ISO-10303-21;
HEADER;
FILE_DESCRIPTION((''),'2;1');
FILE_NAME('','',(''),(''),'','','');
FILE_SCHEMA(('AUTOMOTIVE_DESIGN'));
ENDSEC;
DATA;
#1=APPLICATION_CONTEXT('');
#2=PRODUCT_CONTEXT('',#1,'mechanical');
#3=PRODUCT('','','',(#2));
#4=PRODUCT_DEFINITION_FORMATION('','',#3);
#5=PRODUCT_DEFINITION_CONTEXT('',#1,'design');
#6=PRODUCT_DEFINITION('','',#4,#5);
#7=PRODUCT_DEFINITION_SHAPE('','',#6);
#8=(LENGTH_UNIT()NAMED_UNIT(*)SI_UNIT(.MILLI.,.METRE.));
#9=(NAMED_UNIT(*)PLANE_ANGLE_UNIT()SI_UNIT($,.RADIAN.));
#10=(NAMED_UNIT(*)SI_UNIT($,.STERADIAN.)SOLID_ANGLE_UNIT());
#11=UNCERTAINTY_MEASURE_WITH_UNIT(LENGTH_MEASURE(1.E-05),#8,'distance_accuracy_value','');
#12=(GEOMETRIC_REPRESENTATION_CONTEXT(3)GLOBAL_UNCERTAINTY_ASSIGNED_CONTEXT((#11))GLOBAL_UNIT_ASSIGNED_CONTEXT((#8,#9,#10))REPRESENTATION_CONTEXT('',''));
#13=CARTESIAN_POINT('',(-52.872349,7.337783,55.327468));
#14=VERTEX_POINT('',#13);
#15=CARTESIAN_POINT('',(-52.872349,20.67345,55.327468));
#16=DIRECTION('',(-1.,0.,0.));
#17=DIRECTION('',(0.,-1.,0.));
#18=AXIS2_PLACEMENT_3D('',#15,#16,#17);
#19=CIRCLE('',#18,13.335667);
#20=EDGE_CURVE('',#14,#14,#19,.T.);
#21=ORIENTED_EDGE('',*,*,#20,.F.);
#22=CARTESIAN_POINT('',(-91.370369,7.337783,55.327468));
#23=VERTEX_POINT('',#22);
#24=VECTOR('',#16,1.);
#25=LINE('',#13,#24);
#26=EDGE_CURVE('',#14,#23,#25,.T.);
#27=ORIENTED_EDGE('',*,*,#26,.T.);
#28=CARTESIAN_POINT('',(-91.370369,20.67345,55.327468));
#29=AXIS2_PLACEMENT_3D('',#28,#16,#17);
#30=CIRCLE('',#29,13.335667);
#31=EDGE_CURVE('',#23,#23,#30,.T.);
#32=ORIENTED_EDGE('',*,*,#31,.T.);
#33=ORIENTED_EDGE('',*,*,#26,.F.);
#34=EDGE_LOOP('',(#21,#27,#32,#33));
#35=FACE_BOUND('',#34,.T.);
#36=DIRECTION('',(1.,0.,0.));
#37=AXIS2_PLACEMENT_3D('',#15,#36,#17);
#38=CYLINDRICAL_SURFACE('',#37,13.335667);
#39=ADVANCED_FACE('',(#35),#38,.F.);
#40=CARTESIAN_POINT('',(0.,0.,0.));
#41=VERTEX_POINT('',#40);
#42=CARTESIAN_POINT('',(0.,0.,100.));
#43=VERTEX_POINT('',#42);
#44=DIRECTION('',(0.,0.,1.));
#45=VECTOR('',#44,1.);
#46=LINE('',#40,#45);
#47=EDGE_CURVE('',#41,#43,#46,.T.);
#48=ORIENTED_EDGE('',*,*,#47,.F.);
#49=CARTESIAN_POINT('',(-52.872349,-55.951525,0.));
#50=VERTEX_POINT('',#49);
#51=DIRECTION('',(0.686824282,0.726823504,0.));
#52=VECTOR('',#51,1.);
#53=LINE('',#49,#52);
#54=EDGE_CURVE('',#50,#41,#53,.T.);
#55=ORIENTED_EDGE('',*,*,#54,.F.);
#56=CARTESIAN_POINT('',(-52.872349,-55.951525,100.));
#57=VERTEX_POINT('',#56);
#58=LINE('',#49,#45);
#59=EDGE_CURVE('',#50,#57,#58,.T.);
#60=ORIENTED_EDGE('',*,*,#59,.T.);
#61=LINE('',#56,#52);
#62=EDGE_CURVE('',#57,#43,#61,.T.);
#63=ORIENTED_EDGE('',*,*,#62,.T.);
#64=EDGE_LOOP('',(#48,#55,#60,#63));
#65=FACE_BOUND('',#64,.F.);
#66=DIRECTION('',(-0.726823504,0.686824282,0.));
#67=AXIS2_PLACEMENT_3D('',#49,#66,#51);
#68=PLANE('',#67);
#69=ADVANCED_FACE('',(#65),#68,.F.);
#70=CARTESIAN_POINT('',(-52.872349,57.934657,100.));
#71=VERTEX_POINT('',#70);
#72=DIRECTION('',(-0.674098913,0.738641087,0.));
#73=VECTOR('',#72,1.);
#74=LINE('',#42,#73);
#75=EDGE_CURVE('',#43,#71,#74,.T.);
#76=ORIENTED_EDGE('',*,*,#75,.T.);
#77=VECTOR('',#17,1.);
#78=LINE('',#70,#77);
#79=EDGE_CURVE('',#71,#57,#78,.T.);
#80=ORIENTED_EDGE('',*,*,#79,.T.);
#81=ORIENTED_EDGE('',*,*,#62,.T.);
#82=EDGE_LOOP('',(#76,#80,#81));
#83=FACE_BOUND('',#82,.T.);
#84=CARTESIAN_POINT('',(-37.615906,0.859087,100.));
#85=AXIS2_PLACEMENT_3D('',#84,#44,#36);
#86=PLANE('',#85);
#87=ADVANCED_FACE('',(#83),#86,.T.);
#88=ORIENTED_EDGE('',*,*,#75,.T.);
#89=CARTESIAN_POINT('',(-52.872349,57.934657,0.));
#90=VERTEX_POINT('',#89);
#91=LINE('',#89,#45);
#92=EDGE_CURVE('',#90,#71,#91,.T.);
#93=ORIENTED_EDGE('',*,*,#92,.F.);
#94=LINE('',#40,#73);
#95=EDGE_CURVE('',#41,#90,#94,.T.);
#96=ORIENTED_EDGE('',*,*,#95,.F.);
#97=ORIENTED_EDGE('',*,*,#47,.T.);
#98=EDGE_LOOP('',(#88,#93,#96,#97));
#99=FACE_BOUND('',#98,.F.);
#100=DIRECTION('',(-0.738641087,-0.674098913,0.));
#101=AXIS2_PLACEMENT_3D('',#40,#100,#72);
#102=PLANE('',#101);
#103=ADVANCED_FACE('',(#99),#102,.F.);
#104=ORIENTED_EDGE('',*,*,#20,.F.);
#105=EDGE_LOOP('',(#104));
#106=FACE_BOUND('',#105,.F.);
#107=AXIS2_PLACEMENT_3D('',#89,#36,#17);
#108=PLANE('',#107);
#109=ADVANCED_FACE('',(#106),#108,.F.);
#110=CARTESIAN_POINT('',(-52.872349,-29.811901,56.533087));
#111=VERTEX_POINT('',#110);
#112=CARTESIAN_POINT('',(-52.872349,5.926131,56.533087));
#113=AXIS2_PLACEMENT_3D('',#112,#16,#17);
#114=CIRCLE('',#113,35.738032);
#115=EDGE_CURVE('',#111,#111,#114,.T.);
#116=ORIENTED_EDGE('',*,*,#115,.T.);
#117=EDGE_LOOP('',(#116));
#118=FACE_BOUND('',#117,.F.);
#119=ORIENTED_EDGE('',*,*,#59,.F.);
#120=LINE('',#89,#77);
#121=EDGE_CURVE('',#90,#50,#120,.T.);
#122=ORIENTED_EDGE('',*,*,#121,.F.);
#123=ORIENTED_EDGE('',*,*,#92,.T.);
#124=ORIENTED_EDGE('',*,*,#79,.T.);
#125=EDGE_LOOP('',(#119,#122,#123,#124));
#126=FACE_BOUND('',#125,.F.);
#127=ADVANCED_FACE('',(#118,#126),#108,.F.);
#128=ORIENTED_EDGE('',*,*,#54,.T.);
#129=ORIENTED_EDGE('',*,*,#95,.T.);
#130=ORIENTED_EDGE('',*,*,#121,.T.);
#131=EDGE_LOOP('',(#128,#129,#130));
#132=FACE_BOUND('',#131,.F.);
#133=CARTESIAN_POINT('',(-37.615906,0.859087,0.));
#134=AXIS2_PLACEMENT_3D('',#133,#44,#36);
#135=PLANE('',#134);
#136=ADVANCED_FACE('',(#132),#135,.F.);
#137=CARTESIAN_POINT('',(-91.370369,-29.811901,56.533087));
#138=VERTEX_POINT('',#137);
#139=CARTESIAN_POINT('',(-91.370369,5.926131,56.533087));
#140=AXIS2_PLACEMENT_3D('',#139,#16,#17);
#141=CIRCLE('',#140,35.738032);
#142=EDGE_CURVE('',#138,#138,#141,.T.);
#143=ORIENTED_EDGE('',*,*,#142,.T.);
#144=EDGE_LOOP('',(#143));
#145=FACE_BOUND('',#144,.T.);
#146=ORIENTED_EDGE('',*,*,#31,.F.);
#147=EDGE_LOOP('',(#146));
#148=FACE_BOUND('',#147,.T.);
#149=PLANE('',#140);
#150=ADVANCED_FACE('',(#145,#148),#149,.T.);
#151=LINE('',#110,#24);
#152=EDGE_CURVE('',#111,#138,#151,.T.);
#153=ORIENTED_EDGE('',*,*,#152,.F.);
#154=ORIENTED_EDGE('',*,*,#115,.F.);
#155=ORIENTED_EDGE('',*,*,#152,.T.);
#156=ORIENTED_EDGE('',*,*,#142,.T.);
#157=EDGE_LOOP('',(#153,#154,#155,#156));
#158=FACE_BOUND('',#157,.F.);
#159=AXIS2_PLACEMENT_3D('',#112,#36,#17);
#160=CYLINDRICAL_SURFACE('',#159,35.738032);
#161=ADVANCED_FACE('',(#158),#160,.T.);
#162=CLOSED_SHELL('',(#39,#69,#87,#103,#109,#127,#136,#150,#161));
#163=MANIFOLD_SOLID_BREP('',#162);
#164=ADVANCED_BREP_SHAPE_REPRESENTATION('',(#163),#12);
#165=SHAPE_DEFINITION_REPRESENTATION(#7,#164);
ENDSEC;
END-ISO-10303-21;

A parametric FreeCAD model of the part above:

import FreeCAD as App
import Part
import Sketcher

V = App.Vector


def add_polygon(sketch, points):
    """Adds a closed chain of lines whose ends are joined by coincident constraints."""
    first, n = sketch.GeometryCount, len(points)
    for a, b in zip(points, points[1:] + points[:1]):
        sketch.addGeometry(Part.LineSegment(App.Vector(*a, 0), App.Vector(*b, 0)), False)
    for i in range(n):
        sketch.addConstraint(Sketcher.Constraint("Coincident", first + i, 2, first + (i + 1) % n, 1))

doc = App.newDocument("Part")
body = doc.addObject("PartDesign::Body", "Body")

# Sketch on XY plane
sketch1 = body.newObject("Sketcher::SketchObject", "Sketch")
sketch1.AttachmentSupport = (doc.getObject("XY_Plane"), [""])
sketch1.MapMode = "FlatFace"
add_polygon(sketch1, [(-53, 58), (-53, -56), (0, 0)])  # lines 0-2
sketch1.addConstraint([
    Sketcher.Constraint("Vertical", 0),
    Sketcher.Constraint("Coincident", 1, 2, -1, 1),
    Sketcher.Constraint("DistanceY", 0, 2, 0, 1, 113.886182),
    Sketcher.Constraint("Distance", 2, 78.434111),
    Sketcher.Constraint("DistanceX", 0, 2, -1, 1, 52.872349),
])
pad1 = body.newObject("PartDesign::Pad", "Pad")
pad1.Profile = sketch1
pad1.Length = 100

# Sketch on YZ plane
sketch2 = body.newObject("Sketcher::SketchObject", "Sketch001")
sketch2.AttachmentSupport = (doc.getObject("YZ_Plane"), [""])
sketch2.MapMode = "FlatFace"
sketch2.AttachmentOffset = App.Placement(V(0, 0, -52.872349), App.Rotation())
sketch2.addGeometry([
    Part.Circle(V(6, 57, 0), V(0, 0, 1), 36),
    Part.Circle(V(21, 55, 0), V(0, 0, 1), 13),
], False)
sketch2.addConstraint([
    Sketcher.Constraint("Diameter", 0, 71.476064),
    Sketcher.Constraint("Diameter", 1, 26.671334),
    Sketcher.Constraint("DistanceX", -1, 1, 0, 3, 5.926131),
    Sketcher.Constraint("DistanceX", -1, 1, 1, 3, 20.67345),
    Sketcher.Constraint("DistanceY", -1, 1, 1, 3, 55.327468),
    Sketcher.Constraint("DistanceY", 1, 3, 0, 3, 1.205619),
])
pad2 = body.newObject("PartDesign::Pad", "Pad001")
pad2.Profile = sketch2
pad2.Length = 38.49802
pad2.Reversed = True

doc.recompute()
